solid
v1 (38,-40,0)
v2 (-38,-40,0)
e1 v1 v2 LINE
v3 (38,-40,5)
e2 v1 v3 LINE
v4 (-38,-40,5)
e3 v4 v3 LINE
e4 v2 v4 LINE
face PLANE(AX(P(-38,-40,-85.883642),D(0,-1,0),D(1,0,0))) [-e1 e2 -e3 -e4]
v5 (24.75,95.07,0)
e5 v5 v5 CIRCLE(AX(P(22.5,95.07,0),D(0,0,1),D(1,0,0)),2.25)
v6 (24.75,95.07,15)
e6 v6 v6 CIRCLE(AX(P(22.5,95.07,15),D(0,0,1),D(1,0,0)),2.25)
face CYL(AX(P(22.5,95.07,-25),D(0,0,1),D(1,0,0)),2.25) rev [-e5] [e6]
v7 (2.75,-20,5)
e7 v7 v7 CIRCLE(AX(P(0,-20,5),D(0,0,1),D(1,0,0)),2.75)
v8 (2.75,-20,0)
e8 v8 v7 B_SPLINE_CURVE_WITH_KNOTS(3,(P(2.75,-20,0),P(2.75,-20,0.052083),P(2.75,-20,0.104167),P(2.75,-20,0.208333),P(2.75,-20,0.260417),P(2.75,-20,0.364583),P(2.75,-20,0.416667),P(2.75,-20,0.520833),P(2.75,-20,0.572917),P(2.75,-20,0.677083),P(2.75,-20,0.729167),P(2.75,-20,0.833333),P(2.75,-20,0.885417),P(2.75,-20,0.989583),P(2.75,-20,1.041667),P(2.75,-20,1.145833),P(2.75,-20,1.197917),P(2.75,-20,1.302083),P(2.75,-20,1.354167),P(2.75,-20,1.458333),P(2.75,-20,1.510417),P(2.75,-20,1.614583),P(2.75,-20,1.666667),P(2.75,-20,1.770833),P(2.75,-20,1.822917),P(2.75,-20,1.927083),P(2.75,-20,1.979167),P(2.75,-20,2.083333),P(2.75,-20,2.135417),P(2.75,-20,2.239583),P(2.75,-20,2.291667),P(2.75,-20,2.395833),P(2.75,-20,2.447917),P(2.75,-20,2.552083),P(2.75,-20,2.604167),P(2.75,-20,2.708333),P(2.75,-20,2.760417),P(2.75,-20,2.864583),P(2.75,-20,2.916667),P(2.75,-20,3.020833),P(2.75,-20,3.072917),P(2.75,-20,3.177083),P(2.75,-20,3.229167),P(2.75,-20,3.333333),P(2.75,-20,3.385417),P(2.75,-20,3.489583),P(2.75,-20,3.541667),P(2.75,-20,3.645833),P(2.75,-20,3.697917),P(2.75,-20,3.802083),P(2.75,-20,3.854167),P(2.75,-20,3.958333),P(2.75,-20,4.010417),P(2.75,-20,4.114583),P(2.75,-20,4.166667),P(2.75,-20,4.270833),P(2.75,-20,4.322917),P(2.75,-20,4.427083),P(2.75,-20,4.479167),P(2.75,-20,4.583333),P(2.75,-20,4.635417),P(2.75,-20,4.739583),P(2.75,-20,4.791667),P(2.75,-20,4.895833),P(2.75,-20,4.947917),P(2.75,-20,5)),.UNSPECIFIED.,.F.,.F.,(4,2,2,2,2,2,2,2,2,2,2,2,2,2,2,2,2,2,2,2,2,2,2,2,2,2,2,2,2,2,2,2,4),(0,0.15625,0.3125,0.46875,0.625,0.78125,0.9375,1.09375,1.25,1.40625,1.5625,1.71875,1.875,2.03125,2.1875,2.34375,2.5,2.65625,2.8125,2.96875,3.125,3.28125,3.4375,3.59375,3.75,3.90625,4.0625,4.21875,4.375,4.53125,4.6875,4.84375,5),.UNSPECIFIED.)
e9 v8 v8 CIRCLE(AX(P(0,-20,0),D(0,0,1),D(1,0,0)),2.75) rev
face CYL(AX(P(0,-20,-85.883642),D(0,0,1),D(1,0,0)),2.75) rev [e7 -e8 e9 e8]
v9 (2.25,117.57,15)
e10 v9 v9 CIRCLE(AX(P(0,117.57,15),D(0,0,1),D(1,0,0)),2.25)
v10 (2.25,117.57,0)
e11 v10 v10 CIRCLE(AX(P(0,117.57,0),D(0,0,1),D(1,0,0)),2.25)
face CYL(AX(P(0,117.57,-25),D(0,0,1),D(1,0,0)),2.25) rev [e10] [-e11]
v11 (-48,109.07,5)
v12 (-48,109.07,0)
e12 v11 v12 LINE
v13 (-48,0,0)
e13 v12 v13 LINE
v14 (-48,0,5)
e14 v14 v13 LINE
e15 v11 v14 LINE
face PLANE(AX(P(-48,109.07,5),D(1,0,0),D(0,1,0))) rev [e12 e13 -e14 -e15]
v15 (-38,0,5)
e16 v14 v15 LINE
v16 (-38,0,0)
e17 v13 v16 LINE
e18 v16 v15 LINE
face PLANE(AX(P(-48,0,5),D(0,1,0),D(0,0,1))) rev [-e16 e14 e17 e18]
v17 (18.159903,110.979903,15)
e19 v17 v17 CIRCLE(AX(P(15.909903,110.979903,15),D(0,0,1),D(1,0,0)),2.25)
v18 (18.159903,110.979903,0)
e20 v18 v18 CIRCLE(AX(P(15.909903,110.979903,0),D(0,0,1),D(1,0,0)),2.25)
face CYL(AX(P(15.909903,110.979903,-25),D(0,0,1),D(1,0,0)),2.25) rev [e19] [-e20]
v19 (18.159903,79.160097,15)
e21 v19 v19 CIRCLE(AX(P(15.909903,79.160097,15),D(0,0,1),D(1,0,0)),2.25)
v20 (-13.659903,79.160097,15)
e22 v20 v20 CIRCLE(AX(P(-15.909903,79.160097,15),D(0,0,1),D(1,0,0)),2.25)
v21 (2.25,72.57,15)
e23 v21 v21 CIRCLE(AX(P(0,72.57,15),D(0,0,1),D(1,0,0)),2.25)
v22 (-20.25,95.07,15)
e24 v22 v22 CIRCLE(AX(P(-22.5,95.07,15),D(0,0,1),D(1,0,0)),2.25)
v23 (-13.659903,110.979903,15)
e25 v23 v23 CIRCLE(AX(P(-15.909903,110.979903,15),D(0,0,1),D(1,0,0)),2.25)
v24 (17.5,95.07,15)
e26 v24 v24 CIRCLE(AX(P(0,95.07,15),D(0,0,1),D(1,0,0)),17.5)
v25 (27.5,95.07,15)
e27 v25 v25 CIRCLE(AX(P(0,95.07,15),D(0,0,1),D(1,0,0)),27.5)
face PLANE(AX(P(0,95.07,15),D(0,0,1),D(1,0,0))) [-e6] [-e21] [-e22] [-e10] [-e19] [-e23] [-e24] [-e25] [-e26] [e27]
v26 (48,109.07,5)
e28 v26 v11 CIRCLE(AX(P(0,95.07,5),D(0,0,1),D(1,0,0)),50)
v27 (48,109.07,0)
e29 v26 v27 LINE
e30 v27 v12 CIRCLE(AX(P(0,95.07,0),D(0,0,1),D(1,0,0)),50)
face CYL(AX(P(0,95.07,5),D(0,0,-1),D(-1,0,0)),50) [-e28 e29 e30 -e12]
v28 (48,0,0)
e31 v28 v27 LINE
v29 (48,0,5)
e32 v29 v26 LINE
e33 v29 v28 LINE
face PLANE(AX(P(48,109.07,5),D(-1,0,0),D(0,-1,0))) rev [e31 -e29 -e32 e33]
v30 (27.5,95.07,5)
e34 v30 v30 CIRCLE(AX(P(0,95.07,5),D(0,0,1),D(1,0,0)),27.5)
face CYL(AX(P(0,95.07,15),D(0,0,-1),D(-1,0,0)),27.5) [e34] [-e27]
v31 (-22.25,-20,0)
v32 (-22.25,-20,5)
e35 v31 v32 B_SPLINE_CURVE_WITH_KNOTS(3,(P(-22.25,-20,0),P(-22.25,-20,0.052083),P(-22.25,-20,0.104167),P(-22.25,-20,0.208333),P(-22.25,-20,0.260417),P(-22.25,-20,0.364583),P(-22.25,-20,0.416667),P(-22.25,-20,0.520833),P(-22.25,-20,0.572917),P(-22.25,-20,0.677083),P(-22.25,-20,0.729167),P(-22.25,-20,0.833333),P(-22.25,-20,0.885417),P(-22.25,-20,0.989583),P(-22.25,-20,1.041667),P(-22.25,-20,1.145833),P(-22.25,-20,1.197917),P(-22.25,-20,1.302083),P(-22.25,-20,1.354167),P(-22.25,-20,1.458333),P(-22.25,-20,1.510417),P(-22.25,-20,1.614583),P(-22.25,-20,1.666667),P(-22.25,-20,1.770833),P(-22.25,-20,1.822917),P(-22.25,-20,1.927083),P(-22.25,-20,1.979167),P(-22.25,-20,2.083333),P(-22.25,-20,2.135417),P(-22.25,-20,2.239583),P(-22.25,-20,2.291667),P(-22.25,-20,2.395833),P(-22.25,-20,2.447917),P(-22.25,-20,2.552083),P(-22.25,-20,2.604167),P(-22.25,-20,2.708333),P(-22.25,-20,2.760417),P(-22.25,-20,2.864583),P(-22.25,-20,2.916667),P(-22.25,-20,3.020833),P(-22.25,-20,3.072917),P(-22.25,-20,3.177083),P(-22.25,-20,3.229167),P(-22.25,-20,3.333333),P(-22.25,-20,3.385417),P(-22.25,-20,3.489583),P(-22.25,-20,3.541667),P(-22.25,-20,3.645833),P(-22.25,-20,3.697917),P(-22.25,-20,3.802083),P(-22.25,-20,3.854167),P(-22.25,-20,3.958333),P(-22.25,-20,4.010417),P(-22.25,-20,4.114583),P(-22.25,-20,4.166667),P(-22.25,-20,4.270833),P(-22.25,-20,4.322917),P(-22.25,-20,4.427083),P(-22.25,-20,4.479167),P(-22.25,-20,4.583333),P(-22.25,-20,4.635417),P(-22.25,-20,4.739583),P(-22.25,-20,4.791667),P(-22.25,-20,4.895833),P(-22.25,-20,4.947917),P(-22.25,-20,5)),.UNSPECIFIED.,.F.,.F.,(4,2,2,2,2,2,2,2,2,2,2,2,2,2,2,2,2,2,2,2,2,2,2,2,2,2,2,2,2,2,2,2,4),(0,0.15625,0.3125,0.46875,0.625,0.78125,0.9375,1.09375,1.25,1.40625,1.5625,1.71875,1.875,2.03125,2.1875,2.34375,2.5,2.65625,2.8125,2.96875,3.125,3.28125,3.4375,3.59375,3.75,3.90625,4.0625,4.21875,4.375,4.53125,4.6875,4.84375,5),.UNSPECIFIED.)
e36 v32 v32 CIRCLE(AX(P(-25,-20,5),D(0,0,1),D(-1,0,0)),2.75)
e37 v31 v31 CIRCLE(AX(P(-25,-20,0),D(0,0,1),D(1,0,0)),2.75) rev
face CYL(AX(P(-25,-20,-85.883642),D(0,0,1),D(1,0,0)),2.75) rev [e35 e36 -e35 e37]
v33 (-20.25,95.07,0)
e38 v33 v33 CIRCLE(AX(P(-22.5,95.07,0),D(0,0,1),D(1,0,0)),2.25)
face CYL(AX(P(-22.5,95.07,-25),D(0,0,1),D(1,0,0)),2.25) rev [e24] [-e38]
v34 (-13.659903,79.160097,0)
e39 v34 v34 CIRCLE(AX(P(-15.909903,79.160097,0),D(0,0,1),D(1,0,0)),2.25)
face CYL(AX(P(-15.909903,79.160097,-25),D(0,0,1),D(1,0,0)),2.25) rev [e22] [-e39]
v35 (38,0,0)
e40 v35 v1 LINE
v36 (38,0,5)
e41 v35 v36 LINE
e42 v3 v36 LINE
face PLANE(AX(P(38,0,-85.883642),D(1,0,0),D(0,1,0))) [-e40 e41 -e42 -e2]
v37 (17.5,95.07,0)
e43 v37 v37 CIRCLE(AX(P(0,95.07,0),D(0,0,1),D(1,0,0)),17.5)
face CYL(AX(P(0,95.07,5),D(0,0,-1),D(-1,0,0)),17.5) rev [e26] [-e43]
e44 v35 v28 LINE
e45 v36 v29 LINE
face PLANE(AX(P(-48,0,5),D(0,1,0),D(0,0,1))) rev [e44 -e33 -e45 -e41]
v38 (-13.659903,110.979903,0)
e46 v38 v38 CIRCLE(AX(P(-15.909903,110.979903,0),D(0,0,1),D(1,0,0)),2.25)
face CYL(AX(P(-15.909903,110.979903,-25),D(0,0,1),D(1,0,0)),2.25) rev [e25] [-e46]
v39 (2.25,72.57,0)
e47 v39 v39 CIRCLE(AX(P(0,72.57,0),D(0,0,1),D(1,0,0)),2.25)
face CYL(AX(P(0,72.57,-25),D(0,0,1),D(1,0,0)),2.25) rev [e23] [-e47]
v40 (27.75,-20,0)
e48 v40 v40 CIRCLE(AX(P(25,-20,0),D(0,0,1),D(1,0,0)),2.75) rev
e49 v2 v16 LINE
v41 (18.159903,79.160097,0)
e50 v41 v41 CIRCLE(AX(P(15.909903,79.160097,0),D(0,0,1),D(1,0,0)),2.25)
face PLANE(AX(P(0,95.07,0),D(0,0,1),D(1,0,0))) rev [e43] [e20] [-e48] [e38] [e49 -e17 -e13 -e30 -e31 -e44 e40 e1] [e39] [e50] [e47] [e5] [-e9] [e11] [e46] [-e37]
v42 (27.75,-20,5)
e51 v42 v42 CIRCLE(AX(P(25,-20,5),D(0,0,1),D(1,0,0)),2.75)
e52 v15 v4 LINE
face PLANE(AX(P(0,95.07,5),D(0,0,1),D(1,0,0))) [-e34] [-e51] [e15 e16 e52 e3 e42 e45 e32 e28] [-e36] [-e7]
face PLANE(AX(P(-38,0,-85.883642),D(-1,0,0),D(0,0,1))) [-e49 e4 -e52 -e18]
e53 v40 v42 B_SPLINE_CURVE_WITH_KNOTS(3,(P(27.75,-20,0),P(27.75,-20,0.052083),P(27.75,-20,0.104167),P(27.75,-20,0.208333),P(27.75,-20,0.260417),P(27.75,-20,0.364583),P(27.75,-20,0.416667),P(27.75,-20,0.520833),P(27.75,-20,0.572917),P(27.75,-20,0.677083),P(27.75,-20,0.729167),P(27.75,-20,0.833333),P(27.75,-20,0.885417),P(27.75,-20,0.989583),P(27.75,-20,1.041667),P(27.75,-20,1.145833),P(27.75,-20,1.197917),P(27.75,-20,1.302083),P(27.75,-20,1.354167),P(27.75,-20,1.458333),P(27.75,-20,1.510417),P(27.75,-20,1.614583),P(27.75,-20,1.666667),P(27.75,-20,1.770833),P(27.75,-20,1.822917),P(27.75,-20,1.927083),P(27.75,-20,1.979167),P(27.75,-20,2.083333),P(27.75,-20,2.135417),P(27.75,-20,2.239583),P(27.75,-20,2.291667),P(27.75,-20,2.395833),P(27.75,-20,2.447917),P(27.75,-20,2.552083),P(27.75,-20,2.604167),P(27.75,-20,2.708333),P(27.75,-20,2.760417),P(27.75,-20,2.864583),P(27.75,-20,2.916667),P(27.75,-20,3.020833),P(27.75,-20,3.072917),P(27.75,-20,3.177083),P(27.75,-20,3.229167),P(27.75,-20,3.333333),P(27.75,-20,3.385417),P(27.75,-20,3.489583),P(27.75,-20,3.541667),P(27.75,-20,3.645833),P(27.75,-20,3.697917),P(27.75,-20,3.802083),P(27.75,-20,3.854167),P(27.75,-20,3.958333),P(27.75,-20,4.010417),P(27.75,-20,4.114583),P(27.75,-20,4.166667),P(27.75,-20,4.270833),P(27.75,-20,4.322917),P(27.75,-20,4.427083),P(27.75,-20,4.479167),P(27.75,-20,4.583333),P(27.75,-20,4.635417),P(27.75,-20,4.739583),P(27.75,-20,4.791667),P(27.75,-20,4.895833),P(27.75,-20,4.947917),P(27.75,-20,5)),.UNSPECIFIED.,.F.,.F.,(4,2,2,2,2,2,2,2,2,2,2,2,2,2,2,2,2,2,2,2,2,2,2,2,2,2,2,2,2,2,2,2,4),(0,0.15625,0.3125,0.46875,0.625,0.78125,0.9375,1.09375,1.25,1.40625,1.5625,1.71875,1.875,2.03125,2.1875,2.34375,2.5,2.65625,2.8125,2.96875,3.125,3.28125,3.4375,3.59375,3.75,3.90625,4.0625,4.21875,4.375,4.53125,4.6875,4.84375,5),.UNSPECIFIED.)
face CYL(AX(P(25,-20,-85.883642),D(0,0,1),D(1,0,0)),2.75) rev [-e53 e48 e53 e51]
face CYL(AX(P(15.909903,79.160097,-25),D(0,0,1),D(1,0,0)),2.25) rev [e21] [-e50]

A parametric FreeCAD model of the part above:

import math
import FreeCAD as App
import Part
import Sketcher
Q = App.Units.Quantity

doc = App.newDocument("Part")
body = doc.addObject("PartDesign::Body", "Body")

# Sketch on XY plane
sketch1 = body.newObject("Sketcher::SketchObject", "Sketch")
sketch1.AttachmentSupport = (doc.getObject("XY_Plane"), [""])
sketch1.MapMode = "FlatFace"
sketch1.addGeometry([
    Part.LineSegment(App.Vector(-48, 109.07, 0), App.Vector(-48, 0, 0)),  # 0
    Part.LineSegment(App.Vector(-48, 0, 0), App.Vector(48, 0, 0)),  # 1
    Part.LineSegment(App.Vector(48, 0, 0), App.Vector(48, 109.07, 0)),  # 2
    Part.ArcOfCircle(Part.Circle(App.Vector(0, 95.07, 0), App.Vector(0, 0, 1), 50), math.radians(16.260205), math.radians(163.739795)),  # 3
    Part.Circle(App.Vector(0, 95.07, 0), App.Vector(0, 0, 1), 17.5),  # 4
], False)
sketch1.addConstraint([
    Sketcher.Constraint("Coincident", 0, 2, 1, 1),
    Sketcher.Constraint("Coincident", 1, 2, 2, 1),
    Sketcher.Constraint("Coincident", 2, 2, 3, 1),
    Sketcher.Constraint("Coincident", 3, 2, 0, 1),
    Sketcher.Constraint("Vertical", 0),
    Sketcher.Constraint("Horizontal", 1),
    Sketcher.Constraint("Vertical", 2),
    Sketcher.Constraint("Coincident", 4, 3, 3, 3),
    Sketcher.Constraint("Symmetric", 0, 2, 1, 2, -1, 1),
    Sketcher.Constraint("PointOnObject", 3, 3, -2),
    Sketcher.Constraint("Diameter", 4, Q("35 mm")),
    Sketcher.Constraint("Radius", 3, Q("50 mm")),
    Sketcher.Constraint("DistanceX", 1, 1, 1, 2, Q("96 mm")),
    Sketcher.Constraint("DistanceY", 0, 2, 0, 1, Q("109.07 mm")),
])
pad1 = body.newObject("PartDesign::Pad", "Pad")
pad1.Profile = sketch1
pad1.Length = 5

# Sketch on XY plane
sketch2 = body.newObject("Sketcher::SketchObject", "Sketch001")
sketch2.AttachmentSupport = (doc.getObject("XY_Plane"), [""])
sketch2.MapMode = "FlatFace"
sketch2.AttachmentOffset = App.Placement(App.Vector(0, 0, 5), App.Rotation())
sketch2.addGeometry([
    Part.LineSegment(App.Vector(-38, 0, 0), App.Vector(-38, -40, 0)),  # 0
    Part.LineSegment(App.Vector(-38, -40, 0), App.Vector(38, -40, 0)),  # 1
    Part.LineSegment(App.Vector(38, -40, 0), App.Vector(38, 0, 0)),  # 2
    Part.LineSegment(App.Vector(38, 0, 0), App.Vector(-38, 0, 0)),  # 3
    Part.Circle(App.Vector(-25, -20, 0), App.Vector(0, 0, 1), 2.75),  # 4
    Part.Circle(App.Vector(0, -20, 0), App.Vector(0, 0, 1), 2.75),  # 5
    Part.Circle(App.Vector(25, -20, 0), App.Vector(0, 0, 1), 2.75),  # 6
], False)
sketch2.addConstraint([
    Sketcher.Constraint("Coincident", 0, 2, 1, 1),
    Sketcher.Constraint("Coincident", 1, 2, 2, 1),
    Sketcher.Constraint("Coincident", 2, 2, 3, 1),
    Sketcher.Constraint("Coincident", 3, 2, 0, 1),
    Sketcher.Constraint("Vertical", 0),
    Sketcher.Constraint("Horizontal", 1),
    Sketcher.Constraint("Vertical", 2),
    Sketcher.Constraint("Horizontal", 3),
    Sketcher.Constraint("Equal", 4, 5),
    Sketcher.Constraint("Equal", 5, 6),
    Sketcher.Constraint("Symmetric", 2, 2, 3, 2, -1, 1),
    Sketcher.Constraint("Symmetric", 4, 3, 6, 3, -2),
    Sketcher.Constraint("PointOnObject", 5, 3, -2),
    Sketcher.Constraint("Horizontal", 4, 3, 5, 3),
    Sketcher.Constraint("Diameter", 4, Q("5.5 mm")),
    Sketcher.Constraint("DistanceX", 1, 1, 1, 2, Q("76 mm")),
    Sketcher.Constraint("DistanceY", 0, 2, 0, 1, Q("40 mm")),
    Sketcher.Constraint("DistanceX", 4, 3, -1, 1, Q("25 mm")),
    Sketcher.Constraint("DistanceY", 4, 3, -1, 1, Q("20 mm")),
])
pad2 = body.newObject("PartDesign::Pad", "Pad001")
pad2.Profile = sketch2
pad2.Length = 5
pad2.Reversed = True

# Sketch on XY plane
sketch3 = body.newObject("Sketcher::SketchObject", "Sketch002")
sketch3.AttachmentSupport = (doc.getObject("XY_Plane"), [""])
sketch3.MapMode = "FlatFace"
sketch3.AttachmentOffset = App.Placement(App.Vector(0, 0, 5), App.Rotation())
sketch3.addGeometry([
    Part.Circle(App.Vector(0, 95.07, 0), App.Vector(0, 0, 1), 27.5),
    Part.Circle(App.Vector(0, 95.07, 0), App.Vector(0, 0, 1), 17.5),
], False)
sketch3.addConstraint([
    Sketcher.Constraint("Coincident", 1, 3, 0, 3),
    Sketcher.Constraint("PointOnObject", 0, 3, -2),
    Sketcher.Constraint("Diameter", 0, Q("55 mm")),
    Sketcher.Constraint("Diameter", 1, Q("35 mm")),
    Sketcher.Constraint("DistanceY", -1, 1, 0, 3, Q("95.07 mm")),
])
pad3 = body.newObject("PartDesign::Pad", "Pad002")
pad3.Profile = sketch3
pad3.Length = 10

# Sketch on XY plane
sketch4 = body.newObject("Sketcher::SketchObject", "Sketch003")
sketch4.AttachmentSupport = (doc.getObject("XY_Plane"), [""])
sketch4.MapMode = "FlatFace"
sketch4.AttachmentOffset = App.Placement(App.Vector(0, 0, 15), App.Rotation())
sketch4.addGeometry([
    Part.Circle(App.Vector(0, 117.57, 0), App.Vector(0, 0, 1), 2.25),  # 0
    Part.Circle(App.Vector(15.909903, 110.979903, 0), App.Vector(0, 0, 1), 2.25),  # 1
    Part.Circle(App.Vector(22.5, 95.07, 0), App.Vector(0, 0, 1), 2.25),  # 2
    Part.Circle(App.Vector(15.909903, 79.160097, 0), App.Vector(0, 0, 1), 2.25),  # 3
    Part.Circle(App.Vector(0, 72.57, 0), App.Vector(0, 0, 1), 2.25),  # 4
    Part.Circle(App.Vector(-15.909903, 79.160097, 0), App.Vector(0, 0, 1), 2.25),  # 5
    Part.Circle(App.Vector(-22.5, 95.07, 0), App.Vector(0, 0, 1), 2.25),  # 6
    Part.Circle(App.Vector(-15.909903, 110.979903, 0), App.Vector(0, 0, 1), 2.25),  # 7
], False)
sketch4.addConstraint([
    Sketcher.Constraint("Equal", 0, 1),
    Sketcher.Constraint("Equal", 1, 2),
    Sketcher.Constraint("Equal", 2, 3),
    Sketcher.Constraint("Equal", 3, 4),
    Sketcher.Constraint("Equal", 4, 5),
    Sketcher.Constraint("Equal", 5, 6),
    Sketcher.Constraint("Equal", 6, 7),
    Sketcher.Constraint("Symmetric", 3, 3, 5, 3, -2),
    Sketcher.Constraint("Symmetric", 2, 3, 6, 3, -2),
    Sketcher.Constraint("Symmetric", 1, 3, 7, 3, -2),
    Sketcher.Constraint("PointOnObject", 0, 3, -2),
    Sketcher.Constraint("PointOnObject", 4, 3, -2),
    Sketcher.Constraint("Vertical", 1, 3, 3, 3),
    Sketcher.Constraint("Diameter", 0, Q("4.5 mm")),
    Sketcher.Constraint("DistanceY", 4, 3, 0, 3, Q("45 mm")),
    Sketcher.Constraint("DistanceX", -1, 1, 2, 3, Q("22.5 mm")),
    Sketcher.Constraint("DistanceY", 2, 3, 0, 3, Q("22.5 mm")),
    Sketcher.Constraint("DistanceY", -1, 1, 0, 3, Q("117.57 mm")),
    Sketcher.Constraint("DistanceX", -1, 1, 1, 3, Q("15.909903 mm")),
    Sketcher.Constraint("DistanceY", -1, 1, 1, 3, Q("110.979903 mm")),
    Sketcher.Constraint("DistanceY", -1, 1, 3, 3, Q("79.160097 mm")),
])
pocket1 = body.newObject("PartDesign::Pocket", "Pocket")
pocket1.Profile = sketch4
pocket1.Length = 40

doc.recompute()
